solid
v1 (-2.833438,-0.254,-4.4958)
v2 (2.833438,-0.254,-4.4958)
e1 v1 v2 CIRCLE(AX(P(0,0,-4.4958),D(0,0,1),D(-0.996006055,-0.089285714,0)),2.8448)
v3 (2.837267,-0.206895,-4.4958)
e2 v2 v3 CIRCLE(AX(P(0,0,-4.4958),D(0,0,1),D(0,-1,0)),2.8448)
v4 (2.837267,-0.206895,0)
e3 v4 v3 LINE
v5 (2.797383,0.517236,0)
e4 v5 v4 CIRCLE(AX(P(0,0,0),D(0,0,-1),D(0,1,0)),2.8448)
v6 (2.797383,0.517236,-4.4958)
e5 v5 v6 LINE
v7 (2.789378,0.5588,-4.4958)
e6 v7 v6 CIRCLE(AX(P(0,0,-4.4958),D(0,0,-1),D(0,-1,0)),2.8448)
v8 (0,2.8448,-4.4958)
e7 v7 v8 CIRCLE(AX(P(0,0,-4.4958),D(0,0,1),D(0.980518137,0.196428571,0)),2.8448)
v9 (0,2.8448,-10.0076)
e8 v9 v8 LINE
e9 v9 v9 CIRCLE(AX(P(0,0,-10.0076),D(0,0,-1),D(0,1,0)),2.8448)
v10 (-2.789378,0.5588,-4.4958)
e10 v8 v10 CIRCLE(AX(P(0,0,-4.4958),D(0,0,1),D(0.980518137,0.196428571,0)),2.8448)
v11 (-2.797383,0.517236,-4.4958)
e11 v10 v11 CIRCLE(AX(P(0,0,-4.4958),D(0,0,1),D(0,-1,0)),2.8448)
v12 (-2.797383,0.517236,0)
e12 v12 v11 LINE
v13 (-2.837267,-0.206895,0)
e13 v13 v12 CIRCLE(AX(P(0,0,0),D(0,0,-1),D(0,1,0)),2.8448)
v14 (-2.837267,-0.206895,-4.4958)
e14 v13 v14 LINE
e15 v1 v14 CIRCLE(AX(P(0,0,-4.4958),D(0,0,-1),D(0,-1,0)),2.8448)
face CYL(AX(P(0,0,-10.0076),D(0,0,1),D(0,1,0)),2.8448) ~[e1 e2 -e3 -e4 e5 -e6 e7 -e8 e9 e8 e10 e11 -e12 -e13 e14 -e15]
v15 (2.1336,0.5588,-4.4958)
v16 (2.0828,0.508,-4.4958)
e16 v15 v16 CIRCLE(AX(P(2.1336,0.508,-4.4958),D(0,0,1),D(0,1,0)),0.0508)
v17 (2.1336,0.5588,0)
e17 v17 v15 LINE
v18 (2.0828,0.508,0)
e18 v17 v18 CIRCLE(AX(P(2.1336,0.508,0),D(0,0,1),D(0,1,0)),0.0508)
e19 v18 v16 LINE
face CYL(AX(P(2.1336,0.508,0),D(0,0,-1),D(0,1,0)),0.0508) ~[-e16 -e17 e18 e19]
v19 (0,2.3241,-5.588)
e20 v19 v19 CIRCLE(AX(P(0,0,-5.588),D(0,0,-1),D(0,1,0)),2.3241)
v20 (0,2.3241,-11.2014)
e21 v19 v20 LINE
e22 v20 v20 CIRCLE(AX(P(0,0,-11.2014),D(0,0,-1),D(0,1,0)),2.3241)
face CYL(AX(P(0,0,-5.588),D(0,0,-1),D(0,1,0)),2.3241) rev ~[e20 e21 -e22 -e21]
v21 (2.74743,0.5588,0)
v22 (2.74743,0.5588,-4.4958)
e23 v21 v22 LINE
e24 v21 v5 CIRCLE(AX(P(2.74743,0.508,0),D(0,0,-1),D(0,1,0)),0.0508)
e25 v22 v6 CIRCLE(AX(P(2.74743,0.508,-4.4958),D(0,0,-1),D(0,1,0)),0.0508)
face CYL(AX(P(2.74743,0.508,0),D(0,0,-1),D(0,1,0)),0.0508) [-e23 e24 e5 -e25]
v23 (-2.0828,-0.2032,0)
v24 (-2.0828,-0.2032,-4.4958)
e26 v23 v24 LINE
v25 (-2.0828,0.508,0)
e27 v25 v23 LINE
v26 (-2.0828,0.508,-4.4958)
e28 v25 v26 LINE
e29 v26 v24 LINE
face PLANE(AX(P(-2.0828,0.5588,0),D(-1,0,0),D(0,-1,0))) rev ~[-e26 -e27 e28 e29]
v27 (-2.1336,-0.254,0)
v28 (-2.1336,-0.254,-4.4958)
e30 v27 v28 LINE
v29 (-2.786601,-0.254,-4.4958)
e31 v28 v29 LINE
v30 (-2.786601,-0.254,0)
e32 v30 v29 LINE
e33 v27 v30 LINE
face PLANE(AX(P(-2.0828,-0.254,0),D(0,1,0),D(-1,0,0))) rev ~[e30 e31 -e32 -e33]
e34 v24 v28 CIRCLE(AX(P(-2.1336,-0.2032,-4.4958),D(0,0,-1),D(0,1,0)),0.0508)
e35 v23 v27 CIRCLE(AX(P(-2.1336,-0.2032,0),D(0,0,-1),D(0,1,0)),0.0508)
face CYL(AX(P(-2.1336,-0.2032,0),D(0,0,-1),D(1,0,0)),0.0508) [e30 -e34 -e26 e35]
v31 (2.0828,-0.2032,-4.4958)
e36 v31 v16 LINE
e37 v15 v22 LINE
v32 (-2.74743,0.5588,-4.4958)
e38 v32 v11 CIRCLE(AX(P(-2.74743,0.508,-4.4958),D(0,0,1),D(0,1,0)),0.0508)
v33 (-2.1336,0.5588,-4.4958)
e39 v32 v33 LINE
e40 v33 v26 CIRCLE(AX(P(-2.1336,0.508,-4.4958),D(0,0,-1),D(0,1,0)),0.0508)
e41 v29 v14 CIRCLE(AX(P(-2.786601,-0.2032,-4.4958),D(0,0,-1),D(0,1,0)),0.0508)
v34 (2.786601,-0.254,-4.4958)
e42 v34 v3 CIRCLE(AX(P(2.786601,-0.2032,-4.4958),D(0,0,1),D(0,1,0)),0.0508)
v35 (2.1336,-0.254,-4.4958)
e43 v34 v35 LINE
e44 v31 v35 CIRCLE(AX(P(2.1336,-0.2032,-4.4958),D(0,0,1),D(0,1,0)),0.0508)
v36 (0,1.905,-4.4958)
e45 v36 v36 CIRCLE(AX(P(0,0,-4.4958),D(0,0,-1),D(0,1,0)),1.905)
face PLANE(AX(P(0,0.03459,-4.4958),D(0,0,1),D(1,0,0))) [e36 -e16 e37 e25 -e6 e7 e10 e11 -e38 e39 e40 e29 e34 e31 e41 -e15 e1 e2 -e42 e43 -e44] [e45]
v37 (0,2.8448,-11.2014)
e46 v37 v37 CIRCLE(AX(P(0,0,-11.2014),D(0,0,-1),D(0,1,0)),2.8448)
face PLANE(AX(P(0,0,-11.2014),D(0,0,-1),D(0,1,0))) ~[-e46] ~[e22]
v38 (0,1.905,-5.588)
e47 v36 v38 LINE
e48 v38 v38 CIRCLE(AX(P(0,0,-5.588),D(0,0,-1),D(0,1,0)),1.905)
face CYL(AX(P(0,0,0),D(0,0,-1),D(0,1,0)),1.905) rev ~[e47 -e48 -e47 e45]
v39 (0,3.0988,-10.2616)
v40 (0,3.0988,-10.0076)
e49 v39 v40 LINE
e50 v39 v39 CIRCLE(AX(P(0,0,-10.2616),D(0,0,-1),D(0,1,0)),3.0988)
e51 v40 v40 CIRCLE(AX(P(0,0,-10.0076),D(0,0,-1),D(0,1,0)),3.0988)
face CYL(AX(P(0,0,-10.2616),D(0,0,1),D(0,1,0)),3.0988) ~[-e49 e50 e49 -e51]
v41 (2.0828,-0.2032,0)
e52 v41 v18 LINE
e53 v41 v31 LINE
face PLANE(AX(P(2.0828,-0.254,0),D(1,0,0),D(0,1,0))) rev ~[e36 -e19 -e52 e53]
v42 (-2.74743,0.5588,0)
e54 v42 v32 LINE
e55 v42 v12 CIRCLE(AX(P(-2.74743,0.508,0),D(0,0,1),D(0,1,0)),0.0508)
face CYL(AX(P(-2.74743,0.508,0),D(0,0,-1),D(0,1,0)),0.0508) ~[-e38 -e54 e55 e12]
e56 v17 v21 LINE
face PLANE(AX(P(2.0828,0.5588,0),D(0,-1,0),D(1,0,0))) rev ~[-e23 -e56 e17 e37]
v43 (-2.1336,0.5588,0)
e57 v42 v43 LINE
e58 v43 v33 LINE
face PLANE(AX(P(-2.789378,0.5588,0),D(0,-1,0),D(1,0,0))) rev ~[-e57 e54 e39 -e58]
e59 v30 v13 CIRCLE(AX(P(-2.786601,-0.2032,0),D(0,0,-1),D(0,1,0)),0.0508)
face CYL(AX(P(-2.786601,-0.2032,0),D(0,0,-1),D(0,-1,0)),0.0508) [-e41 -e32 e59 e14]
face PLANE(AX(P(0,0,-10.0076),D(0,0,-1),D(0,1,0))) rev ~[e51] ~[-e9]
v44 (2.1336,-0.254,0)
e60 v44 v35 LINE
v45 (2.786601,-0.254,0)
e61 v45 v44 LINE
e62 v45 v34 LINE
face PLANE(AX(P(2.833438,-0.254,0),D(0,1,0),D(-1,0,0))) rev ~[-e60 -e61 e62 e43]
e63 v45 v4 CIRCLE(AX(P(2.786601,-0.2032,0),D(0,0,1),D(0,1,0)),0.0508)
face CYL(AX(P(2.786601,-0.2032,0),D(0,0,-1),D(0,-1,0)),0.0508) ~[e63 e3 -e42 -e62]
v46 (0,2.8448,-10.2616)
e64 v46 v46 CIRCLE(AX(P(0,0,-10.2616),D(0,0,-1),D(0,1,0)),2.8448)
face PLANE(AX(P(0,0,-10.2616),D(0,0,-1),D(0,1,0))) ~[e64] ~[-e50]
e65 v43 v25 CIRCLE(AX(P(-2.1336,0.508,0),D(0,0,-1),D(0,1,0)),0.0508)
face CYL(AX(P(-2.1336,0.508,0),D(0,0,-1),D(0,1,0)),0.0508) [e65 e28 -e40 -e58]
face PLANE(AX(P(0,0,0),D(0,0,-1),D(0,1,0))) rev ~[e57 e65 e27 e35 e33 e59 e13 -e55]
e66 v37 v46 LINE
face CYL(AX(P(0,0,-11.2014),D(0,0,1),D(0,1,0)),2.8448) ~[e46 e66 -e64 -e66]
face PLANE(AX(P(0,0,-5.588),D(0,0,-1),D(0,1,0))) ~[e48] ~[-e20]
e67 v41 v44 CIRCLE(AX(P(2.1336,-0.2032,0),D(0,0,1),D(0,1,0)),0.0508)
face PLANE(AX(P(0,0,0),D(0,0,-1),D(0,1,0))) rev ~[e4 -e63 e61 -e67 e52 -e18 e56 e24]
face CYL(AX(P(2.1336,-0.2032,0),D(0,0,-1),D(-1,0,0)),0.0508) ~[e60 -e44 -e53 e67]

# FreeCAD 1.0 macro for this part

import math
import FreeCAD as App
import Part
import Sketcher
from FreeCAD import Vector
Q = App.Units.Quantity


def edges_at(feature, points):
    """Names of the edges that pass closest to the given points."""
    edges = feature.Shape.Edges
    near = lambda p: min(range(len(edges)), key=lambda i: edges[i].distToShape(Part.Vertex(*p))[0])
    return sorted({f"Edge{near(p) + 1}" for p in points})

doc = App.newDocument("Part")
body = doc.addObject("PartDesign::Body", "Body")

sketch1 = body.newObject("Sketcher::SketchObject", "Sketch")
sketch1.AttachmentSupport = (doc.getObject("YZ_Plane"), [""])
sketch1.MapMode = "FlatFace"
sketch1.addGeometry(Part.LineSegment(Vector(2.84, 0, 0), Vector(1.91, 0, 0)), False)
sketch1.addGeometry(Part.LineSegment(Vector(1.91, 0, 0), Vector(1.91, -5.59, 0)), False)
sketch1.addGeometry(Part.LineSegment(Vector(1.91, -5.59, 0), Vector(2.32, -5.59, 0)), False)
sketch1.addGeometry(Part.LineSegment(Vector(2.32, -5.59, 0), Vector(2.32, -11.2, 0)), False)
sketch1.addGeometry(Part.LineSegment(Vector(2.32, -11.2, 0), Vector(2.84, -11.2, 0)), False)
sketch1.addGeometry(Part.LineSegment(Vector(2.84, -11.2, 0), Vector(2.84, -10.26, 0)), False)
sketch1.addGeometry(Part.LineSegment(Vector(2.84, -10.26, 0), Vector(3.1, -10.26, 0)), False)
sketch1.addGeometry(Part.LineSegment(Vector(3.1, -10.26, 0), Vector(3.1, -10.01, 0)), False)
sketch1.addGeometry(Part.LineSegment(Vector(3.1, -10.01, 0), Vector(2.84, -10.01, 0)), False)
sketch1.addGeometry(Part.LineSegment(Vector(2.84, -10.01, 0), Vector(2.84, 0, 0)), False)
sketch1.addConstraint(Sketcher.Constraint("Coincident", 0, 2, 1, 1))
sketch1.addConstraint(Sketcher.Constraint("Coincident", 1, 2, 2, 1))
sketch1.addConstraint(Sketcher.Constraint("Coincident", 2, 2, 3, 1))
sketch1.addConstraint(Sketcher.Constraint("Coincident", 3, 2, 4, 1))
sketch1.addConstraint(Sketcher.Constraint("Coincident", 4, 2, 5, 1))
sketch1.addConstraint(Sketcher.Constraint("Coincident", 5, 2, 6, 1))
sketch1.addConstraint(Sketcher.Constraint("Coincident", 6, 2, 7, 1))
sketch1.addConstraint(Sketcher.Constraint("Coincident", 7, 2, 8, 1))
sketch1.addConstraint(Sketcher.Constraint("Coincident", 8, 2, 9, 1))
sketch1.addConstraint(Sketcher.Constraint("Coincident", 9, 2, 0, 1))
sketch1.addConstraint(Sketcher.Constraint("Horizontal", 0))
sketch1.addConstraint(Sketcher.Constraint("Vertical", 1))
sketch1.addConstraint(Sketcher.Constraint("Horizontal", 2))
sketch1.addConstraint(Sketcher.Constraint("Vertical", 3))
sketch1.addConstraint(Sketcher.Constraint("Horizontal", 4))
sketch1.addConstraint(Sketcher.Constraint("Vertical", 5))
sketch1.addConstraint(Sketcher.Constraint("Horizontal", 6))
sketch1.addConstraint(Sketcher.Constraint("Vertical", 7))
sketch1.addConstraint(Sketcher.Constraint("Horizontal", 8))
sketch1.addConstraint(Sketcher.Constraint("Vertical", 9))
sketch1.addConstraint(Sketcher.Constraint("PointOnObject", 0, 2, -1))
sketch1.addConstraint(Sketcher.Constraint("Vertical", 5, 2, 8, 2))
sketch1.addConstraint(Sketcher.Constraint("Equal", 0, 5))
sketch1.addConstraint(Sketcher.Constraint("Equal", 8, 7))
sketch1.addConstraint(Sketcher.Constraint("DistanceX", 6, 1, 6, 2, Q("0.01 in")))
sketch1.addConstraint(Sketcher.Constraint("DistanceY", 1, 2, 1, 1, Q("0.22 in")))
sketch1.addConstraint(Sketcher.Constraint("DistanceX", 0, 2, 0, 1, Q("0.037 in")))
sketch1.addConstraint(Sketcher.Constraint("DistanceY", 3, 2, 3, 1, Q("0.221 in")))
sketch1.addConstraint(Sketcher.Constraint("DistanceX", 2, 1, 2, 2, Q("0.0165 in")))
sketch1.addConstraint(Sketcher.Constraint("DistanceX", -1, 1, 0, 2, Q("0.075 in")))
revolution = body.newObject("PartDesign::Revolution", "Revolution")
revolution.Profile = sketch1
revolution.ReferenceAxis = (sketch1, ["V_Axis"])
revolution.Angle = 360

sketch2 = body.newObject("Sketcher::SketchObject", "Sketch001")
sketch2.AttachmentSupport = (doc.getObject("XY_Plane"), [""])
sketch2.MapMode = "FlatFace"
sketch2.addGeometry(Part.ArcOfCircle(Part.Circle(Vector(0, 0, 0), Vector(0, 0, 1), 2.8), math.radians(11), math.radians(169)), False)
sketch2.addGeometry(Part.LineSegment(Vector(-2.8, 0.6, 0), Vector(-2.1, 0.6, 0)), False)
sketch2.addGeometry(Part.LineSegment(Vector(-2.1, 0.6, 0), Vector(-2.1, -0.3, 0)), False)
sketch2.addGeometry(Part.LineSegment(Vector(-2.1, -0.3, 0), Vector(-2.8, -0.3, 0)), False)
sketch2.addGeometry(Part.ArcOfCircle(Part.Circle(Vector(0, 0, 0), Vector(0, 0, 1), 2.8), math.radians(-175), math.radians(-5)), False)
sketch2.addGeometry(Part.LineSegment(Vector(2.8, -0.3, 0), Vector(2.1, -0.3, 0)), False)
sketch2.addGeometry(Part.LineSegment(Vector(2.1, -0.3, 0), Vector(2.1, 0.6, 0)), False)
sketch2.addGeometry(Part.LineSegment(Vector(2.1, 0.6, 0), Vector(2.8, 0.6, 0)), False)
sketch2.addGeometry(Part.Circle(Vector(0, 0, 0), Vector(0, 0, 1), 1.9), False)
sketch2.addConstraint(Sketcher.Constraint("Coincident", 0, 2, 1, 1))
sketch2.addConstraint(Sketcher.Constraint("Coincident", 1, 2, 2, 1))
sketch2.addConstraint(Sketcher.Constraint("Coincident", 2, 2, 3, 1))
sketch2.addConstraint(Sketcher.Constraint("Coincident", 3, 2, 4, 1))
sketch2.addConstraint(Sketcher.Constraint("Coincident", 4, 2, 5, 1))
sketch2.addConstraint(Sketcher.Constraint("Coincident", 5, 2, 6, 1))
sketch2.addConstraint(Sketcher.Constraint("Coincident", 6, 2, 7, 1))
sketch2.addConstraint(Sketcher.Constraint("Coincident", 7, 2, 0, 1))
sketch2.addConstraint(Sketcher.Constraint("Horizontal", 1))
sketch2.addConstraint(Sketcher.Constraint("Vertical", 2))
sketch2.addConstraint(Sketcher.Constraint("Horizontal", 3))
sketch2.addConstraint(Sketcher.Constraint("Horizontal", 5))
sketch2.addConstraint(Sketcher.Constraint("Vertical", 6))
sketch2.addConstraint(Sketcher.Constraint("Horizontal", 7))
sketch2.addConstraint(Sketcher.Constraint("Coincident", 0, 3, -1, 1))
sketch2.addConstraint(Sketcher.Constraint("Coincident", 4, 3, -1, 1))
sketch2.addConstraint(Sketcher.Constraint("Coincident", 8, 3, -1, 1))
sketch2.addConstraint(Sketcher.Constraint("Equal", 0, 4))
sketch2.addConstraint(Sketcher.Constraint("Symmetric", 2, 2, 5, 2, -2))
sketch2.addConstraint(Sketcher.Constraint("Horizontal", 1, 2, 6, 2))
sketch2.addConstraint(Sketcher.Constraint("Diameter", 8, Q("0.15 in")))
sketch2.addConstraint(Sketcher.Constraint("Radius", 0, Q("0.112 in")))
sketch2.addConstraint(Sketcher.Constraint("DistanceY", 2, 2, 2, 1, Q("0.032 in")))
sketch2.addConstraint(Sketcher.Constraint("DistanceY", 2, 2, -1, 1, Q("0.01 in")))
sketch2.addConstraint(Sketcher.Constraint("DistanceX", 1, 2, -1, 1, Q("0.082 in")))
pocket1 = body.newObject("PartDesign::Pocket", "Pocket")
pocket1.Profile = sketch2
pocket1.Length = Q("0.177 in")
doc.recompute()

fillet = body.newObject("PartDesign::Fillet", "Fillet")
fillet.Base = (pocket1, edges_at(pocket1, [
    (-2.789, 0.559, -2.248),
    (-2.083, 0.559, -2.248),
    (-2.083, -0.254, -2.248),
    (-2.833, -0.254, -2.248),
    (2.083, -0.254, -2.248),
    (2.833, -0.254, -2.248),
    (2.789, 0.559, -2.248),
    (2.083, 0.559, -2.248),
]))
fillet.Radius = Q("0.002 in")

doc.recompute()
